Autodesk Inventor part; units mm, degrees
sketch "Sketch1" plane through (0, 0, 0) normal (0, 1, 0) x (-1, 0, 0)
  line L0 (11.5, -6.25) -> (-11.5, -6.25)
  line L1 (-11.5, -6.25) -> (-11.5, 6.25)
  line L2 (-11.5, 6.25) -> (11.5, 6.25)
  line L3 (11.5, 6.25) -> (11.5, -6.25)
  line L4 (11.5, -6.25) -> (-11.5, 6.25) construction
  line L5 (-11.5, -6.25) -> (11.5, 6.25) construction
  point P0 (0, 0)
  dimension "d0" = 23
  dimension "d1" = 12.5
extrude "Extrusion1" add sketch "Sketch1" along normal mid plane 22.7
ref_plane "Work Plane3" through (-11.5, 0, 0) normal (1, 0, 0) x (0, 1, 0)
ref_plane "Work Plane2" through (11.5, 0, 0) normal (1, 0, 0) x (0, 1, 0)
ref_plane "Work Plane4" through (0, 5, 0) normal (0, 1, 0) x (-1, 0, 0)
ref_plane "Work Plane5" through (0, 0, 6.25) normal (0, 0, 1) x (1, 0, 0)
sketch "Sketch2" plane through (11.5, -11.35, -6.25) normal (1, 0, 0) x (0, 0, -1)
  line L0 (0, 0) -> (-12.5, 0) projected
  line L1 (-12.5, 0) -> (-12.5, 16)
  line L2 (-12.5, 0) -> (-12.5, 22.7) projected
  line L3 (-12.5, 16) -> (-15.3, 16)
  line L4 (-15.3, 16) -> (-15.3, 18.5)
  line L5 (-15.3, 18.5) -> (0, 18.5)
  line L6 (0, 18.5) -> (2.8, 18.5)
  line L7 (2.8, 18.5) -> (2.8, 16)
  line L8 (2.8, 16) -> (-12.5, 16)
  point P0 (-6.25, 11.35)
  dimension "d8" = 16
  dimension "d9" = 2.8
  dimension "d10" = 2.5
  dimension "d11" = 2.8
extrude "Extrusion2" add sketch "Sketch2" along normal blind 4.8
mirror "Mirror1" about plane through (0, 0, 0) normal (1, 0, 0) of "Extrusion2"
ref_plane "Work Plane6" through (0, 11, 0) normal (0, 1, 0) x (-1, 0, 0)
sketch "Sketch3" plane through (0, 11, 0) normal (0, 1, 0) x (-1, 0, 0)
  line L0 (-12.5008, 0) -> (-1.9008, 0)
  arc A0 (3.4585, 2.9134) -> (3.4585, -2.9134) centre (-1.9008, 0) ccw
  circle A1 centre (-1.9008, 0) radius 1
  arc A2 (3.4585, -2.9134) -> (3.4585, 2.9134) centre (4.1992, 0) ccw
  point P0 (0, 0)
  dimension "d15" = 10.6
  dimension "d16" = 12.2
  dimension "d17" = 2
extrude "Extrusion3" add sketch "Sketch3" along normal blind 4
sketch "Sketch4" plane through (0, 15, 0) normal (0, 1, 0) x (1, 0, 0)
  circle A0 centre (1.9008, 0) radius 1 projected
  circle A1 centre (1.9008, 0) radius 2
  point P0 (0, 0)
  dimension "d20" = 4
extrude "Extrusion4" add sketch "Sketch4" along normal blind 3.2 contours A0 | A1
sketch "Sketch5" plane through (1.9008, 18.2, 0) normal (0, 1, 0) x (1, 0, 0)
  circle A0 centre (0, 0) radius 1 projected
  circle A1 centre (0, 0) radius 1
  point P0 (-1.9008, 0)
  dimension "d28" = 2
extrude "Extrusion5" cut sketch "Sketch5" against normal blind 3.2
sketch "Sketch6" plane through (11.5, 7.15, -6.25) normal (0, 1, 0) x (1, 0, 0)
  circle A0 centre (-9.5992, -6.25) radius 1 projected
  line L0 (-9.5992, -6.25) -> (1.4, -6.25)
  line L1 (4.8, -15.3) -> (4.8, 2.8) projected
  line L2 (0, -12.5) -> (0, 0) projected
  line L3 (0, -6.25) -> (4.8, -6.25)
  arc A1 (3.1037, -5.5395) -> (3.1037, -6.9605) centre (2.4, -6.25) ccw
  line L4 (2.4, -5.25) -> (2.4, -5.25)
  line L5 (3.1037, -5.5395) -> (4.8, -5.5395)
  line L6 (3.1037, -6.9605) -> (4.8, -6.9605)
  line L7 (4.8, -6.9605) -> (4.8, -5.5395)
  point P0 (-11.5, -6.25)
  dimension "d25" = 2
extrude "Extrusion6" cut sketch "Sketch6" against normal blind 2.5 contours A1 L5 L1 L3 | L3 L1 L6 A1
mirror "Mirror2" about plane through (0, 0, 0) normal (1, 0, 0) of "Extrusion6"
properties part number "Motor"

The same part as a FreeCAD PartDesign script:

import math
import FreeCAD as App
import Part
import Sketcher
from FreeCAD import Vector


def add_polygon(sketch, points):
    """Adds a closed chain of lines whose ends are joined by coincident constraints."""
    first, n = sketch.GeometryCount, len(points)
    for a, b in zip(points, points[1:] + points[:1]):
        sketch.addGeometry(Part.LineSegment(App.Vector(*a, 0), App.Vector(*b, 0)), False)
    for i in range(n):
        sketch.addConstraint(Sketcher.Constraint("Coincident", first + i, 2, first + (i + 1) % n, 1))

doc = App.newDocument("Part")
params = doc.addObject("Spreadsheet::Sheet", "Params")
for row, (alias, value) in enumerate([
    ("sketch1_width", "23 mm"),
    ("sketch1_height", "12.5 mm"),
    ("pad1_length", "22.7 mm"),
    ("sketch2_width", "2.5 mm"),
    ("sketch2_height", "18.1 mm"),
    ("pad2_length", "4.8 mm"),
    ("sketch3_diameter", "2 mm"),
    ("sketch3_radius", "6.1 mm"),
    ("pad3_length", "4 mm"),
    ("sketch4_diameter", "4 mm"),
    ("pad4_length", "3.2 mm"),
    ("sketch5_diameter", "2 mm"),
    ("pocket1_length", "3.2 mm"),
    ("sketch6_radius", "1 mm"),
    ("pocket2_length", "2.5 mm"),
], start=1):
    params.set(f"A{row}", alias)
    params.set(f"B{row}", "=" + value)
    params.setAlias(f"B{row}", alias)

body = doc.addObject("PartDesign::Body", "Body")

sketch1 = body.newObject("Sketcher::SketchObject", "Sketch")
sketch1.AttachmentSupport = (doc.getObject("XZ_Plane"), [""])
sketch1.MapMode = "FlatFace"
add_polygon(sketch1, [(12, -6), (-12, -6), (-12, 6), (12, 6)])
sketch1.addConstraint(Sketcher.Constraint("Horizontal", 0))
sketch1.addConstraint(Sketcher.Constraint("Vertical", 1))
sketch1.addConstraint(Sketcher.Constraint("Horizontal", 2))
sketch1.addConstraint(Sketcher.Constraint("Vertical", 3))
sketch1.addConstraint(Sketcher.Constraint("Symmetric", 0, 2, 2, 2, -1, 1))
sketch1.addConstraint(Sketcher.Constraint("DistanceX", 0, 2, 0, 1, 23.0))
sketch1.addConstraint(Sketcher.Constraint("DistanceY", 1, 1, 1, 2, 12.5))
sketch1.setExpression("Constraints[9]", "Params.sketch1_width")
sketch1.setExpression("Constraints[10]", "Params.sketch1_height")
pad1 = body.newObject("PartDesign::Pad", "Pad")
pad1.Profile = sketch1
pad1.setExpression("Length", "Params.pad1_length")
pad1.Midplane = True

sketch2 = body.newObject("Sketcher::SketchObject", "Sketch001")
sketch2.AttachmentSupport = (doc.getObject("YZ_Plane"), [""])
sketch2.MapMode = "FlatFace"
sketch2.AttachmentOffset = App.Placement(Vector(0, 0, 11.5), App.Rotation())
add_polygon(sketch2, [(4.7, 9.1), (4.7, -9.1), (7.2, -9.1), (7.2, 9.1)])
sketch2.addConstraint(Sketcher.Constraint("Vertical", 0))
sketch2.addConstraint(Sketcher.Constraint("Horizontal", 1))
sketch2.addConstraint(Sketcher.Constraint("Vertical", 2))
sketch2.addConstraint(Sketcher.Constraint("Horizontal", 3))
sketch2.addConstraint(Sketcher.Constraint("DistanceX", 1, 1, 1, 2, 2.5))
sketch2.addConstraint(Sketcher.Constraint("DistanceY", 0, 2, 0, 1, 18.1))
sketch2.addConstraint(Sketcher.Constraint("DistanceX", -1, 1, 0, 2, 4.65))
sketch2.addConstraint(Sketcher.Constraint("DistanceY", 0, 2, -1, 1, 9.05))
sketch2.setExpression("Constraints[8]", "Params.sketch2_width")
sketch2.setExpression("Constraints[9]", "Params.sketch2_height")
pad2 = body.newObject("PartDesign::Pad", "Pad001")
pad2.Profile = sketch2
pad2.setExpression("Length", "Params.pad2_length")
doc.recompute()

mirrored = body.newObject("PartDesign::Mirrored", "Mirrored")
mirrored.Originals = [pad2]
mirrored.MirrorPlane = (doc.getObject("YZ_Plane"), [""])
body.Tip = mirrored

sketch3 = body.newObject("Sketcher::SketchObject", "Sketch002")
sketch3.AttachmentSupport = (doc.getObject("XZ_Plane"), [""])
sketch3.MapMode = "FlatFace"
sketch3.AttachmentOffset = App.Placement(Vector(0, 0, -11), App.Rotation())
sketch3.addGeometry(Part.ArcOfCircle(Part.Circle(Vector(1.9, 0, 0), Vector(0, 0, 1), 6.1), math.radians(0), math.radians(151)), False)
sketch3.addGeometry(Part.ArcOfCircle(Part.Circle(Vector(1.9, 0, 0), Vector(0, 0, 1), 6.1), math.radians(-151), math.radians(0)), False)
sketch3.addGeometry(Part.ArcOfCircle(Part.Circle(Vector(-4.2, 0, 0), Vector(0, 0, 1), 3), math.radians(76), math.radians(284)), False)
sketch3.addGeometry(Part.Circle(Vector(1.9, 0, 0), Vector(0, 0, 1), 1), False)
sketch3.addConstraint(Sketcher.Constraint("Tangent", 0, 1, 1, 2))
sketch3.addConstraint(Sketcher.Constraint("Coincident", 1, 1, 2, 2))
sketch3.addConstraint(Sketcher.Constraint("Coincident", 2, 1, 0, 2))
sketch3.addConstraint(Sketcher.Constraint("Coincident", 3, 3, 0, 3))
sketch3.addConstraint(Sketcher.Constraint("Equal", 0, 1))
sketch3.addConstraint(Sketcher.Constraint("Symmetric", 1, 1, 2, 1, -1))
sketch3.addConstraint(Sketcher.Constraint("PointOnObject", 0, 1, -1))
sketch3.addConstraint(Sketcher.Constraint("Diameter", 3, 2.0))
sketch3.addConstraint(Sketcher.Constraint("Radius", 0, 6.1))
sketch3.addConstraint(Sketcher.Constraint("DistanceX", 2, 3, 0, 1, 12.2))
sketch3.addConstraint(Sketcher.Constraint("Radius", 2, 3.006))
sketch3.addConstraint(Sketcher.Constraint("DistanceX", -1, 1, 0, 3, 1.9008))
sketch3.setExpression("Constraints[7]", "Params.sketch3_diameter")
sketch3.setExpression("Constraints[8]", "Params.sketch3_radius")
pad3 = body.newObject("PartDesign::Pad", "Pad002")
pad3.Profile = sketch3
pad3.setExpression("Length", "Params.pad3_length")
pad3.Reversed = True

sketch4 = body.newObject("Sketcher::SketchObject", "Sketch003")
sketch4.AttachmentSupport = (doc.getObject("XZ_Plane"), [""])
sketch4.MapMode = "FlatFace"
sketch4.AttachmentOffset = App.Placement(Vector(0, 0, -15), App.Rotation())
sketch4.addGeometry(Part.Circle(Vector(1.9, 0, 0), Vector(0, 0, 1), 2), False)
sketch4.addConstraint(Sketcher.Constraint("PointOnObject", 0, 3, -1))
sketch4.addConstraint(Sketcher.Constraint("Diameter", 0, 4.0))
sketch4.addConstraint(Sketcher.Constraint("DistanceX", -1, 1, 0, 3, 1.9008))
sketch4.setExpression("Constraints[1]", "Params.sketch4_diameter")
pad4 = body.newObject("PartDesign::Pad", "Pad003")
pad4.Profile = sketch4
pad4.setExpression("Length", "Params.pad4_length")
pad4.Reversed = True

sketch5 = body.newObject("Sketcher::SketchObject", "Sketch004")
sketch5.AttachmentSupport = (doc.getObject("XZ_Plane"), [""])
sketch5.MapMode = "FlatFace"
sketch5.AttachmentOffset = App.Placement(Vector(0, 0, -18.2), App.Rotation())
sketch5.addGeometry(Part.Circle(Vector(1.9, 0, 0), Vector(0, 0, 1), 1), False)
sketch5.addConstraint(Sketcher.Constraint("PointOnObject", 0, 3, -1))
sketch5.addConstraint(Sketcher.Constraint("Diameter", 0, 2.0))
sketch5.addConstraint(Sketcher.Constraint("DistanceX", -1, 1, 0, 3, 1.9008))
sketch5.setExpression("Constraints[1]", "Params.sketch5_diameter")
pocket1 = body.newObject("PartDesign::Pocket", "Pocket")
pocket1.Profile = sketch5
pocket1.setExpression("Length", "Params.pocket1_length")
pocket1.Reversed = True

sketch6 = body.newObject("Sketcher::SketchObject", "Sketch005")
sketch6.AttachmentSupport = (doc.getObject("XZ_Plane"), [""])
sketch6.MapMode = "FlatFace"
sketch6.AttachmentOffset = App.Placement(Vector(0, 0, -7.15), App.Rotation())
sketch6.addGeometry(Part.ArcOfCircle(Part.Circle(Vector(13.9, 0, 0), Vector(0, 0, 1), 1), math.radians(45), math.radians(315)), False)
sketch6.addGeometry(Part.LineSegment(Vector(14.6, 0.7, 0), Vector(16.3, 0.7, 0)), False)
sketch6.addGeometry(Part.LineSegment(Vector(16.3, 0.7, 0), Vector(16.3, -0.7, 0)), False)
sketch6.addGeometry(Part.LineSegment(Vector(16.3, -0.7, 0), Vector(14.6, -0.7, 0)), False)
sketch6.addConstraint(Sketcher.Constraint("Coincident", 0, 1, 1, 1))
sketch6.addConstraint(Sketcher.Constraint("Coincident", 1, 2, 2, 1))
sketch6.addConstraint(Sketcher.Constraint("Coincident", 2, 2, 3, 1))
sketch6.addConstraint(Sketcher.Constraint("Coincident", 3, 2, 0, 2))
sketch6.addConstraint(Sketcher.Constraint("Horizontal", 1))
sketch6.addConstraint(Sketcher.Constraint("Vertical", 2))
sketch6.addConstraint(Sketcher.Constraint("Horizontal", 3))
sketch6.addConstraint(Sketcher.Constraint("Symmetric", 0, 1, 3, 2, -1))
sketch6.addConstraint(Sketcher.Constraint("Radius", 0, 1.0))
sketch6.addConstraint(Sketcher.Constraint("DistanceX", -1, 1, 0, 3, 13.9))
sketch6.addConstraint(Sketcher.Constraint("DistanceX", -1, 1, 1, 2, 16.3))
sketch6.addConstraint(Sketcher.Constraint("DistanceY", 2, 2, 2, 1, 1.421))
sketch6.setExpression("Constraints[8]", "Params.sketch6_radius")
pocket2 = body.newObject("PartDesign::Pocket", "Pocket001")
pocket2.Profile = sketch6
pocket2.setExpression("Length", "Params.pocket2_length")
pocket2.Reversed = True
doc.recompute()

mirrored2 = body.newObject("PartDesign::Mirrored", "Mirrored001")
mirrored2.Originals = [pocket2]
mirrored2.MirrorPlane = (doc.getObject("YZ_Plane"), [""])
body.Tip = mirrored2

doc.recompute()
